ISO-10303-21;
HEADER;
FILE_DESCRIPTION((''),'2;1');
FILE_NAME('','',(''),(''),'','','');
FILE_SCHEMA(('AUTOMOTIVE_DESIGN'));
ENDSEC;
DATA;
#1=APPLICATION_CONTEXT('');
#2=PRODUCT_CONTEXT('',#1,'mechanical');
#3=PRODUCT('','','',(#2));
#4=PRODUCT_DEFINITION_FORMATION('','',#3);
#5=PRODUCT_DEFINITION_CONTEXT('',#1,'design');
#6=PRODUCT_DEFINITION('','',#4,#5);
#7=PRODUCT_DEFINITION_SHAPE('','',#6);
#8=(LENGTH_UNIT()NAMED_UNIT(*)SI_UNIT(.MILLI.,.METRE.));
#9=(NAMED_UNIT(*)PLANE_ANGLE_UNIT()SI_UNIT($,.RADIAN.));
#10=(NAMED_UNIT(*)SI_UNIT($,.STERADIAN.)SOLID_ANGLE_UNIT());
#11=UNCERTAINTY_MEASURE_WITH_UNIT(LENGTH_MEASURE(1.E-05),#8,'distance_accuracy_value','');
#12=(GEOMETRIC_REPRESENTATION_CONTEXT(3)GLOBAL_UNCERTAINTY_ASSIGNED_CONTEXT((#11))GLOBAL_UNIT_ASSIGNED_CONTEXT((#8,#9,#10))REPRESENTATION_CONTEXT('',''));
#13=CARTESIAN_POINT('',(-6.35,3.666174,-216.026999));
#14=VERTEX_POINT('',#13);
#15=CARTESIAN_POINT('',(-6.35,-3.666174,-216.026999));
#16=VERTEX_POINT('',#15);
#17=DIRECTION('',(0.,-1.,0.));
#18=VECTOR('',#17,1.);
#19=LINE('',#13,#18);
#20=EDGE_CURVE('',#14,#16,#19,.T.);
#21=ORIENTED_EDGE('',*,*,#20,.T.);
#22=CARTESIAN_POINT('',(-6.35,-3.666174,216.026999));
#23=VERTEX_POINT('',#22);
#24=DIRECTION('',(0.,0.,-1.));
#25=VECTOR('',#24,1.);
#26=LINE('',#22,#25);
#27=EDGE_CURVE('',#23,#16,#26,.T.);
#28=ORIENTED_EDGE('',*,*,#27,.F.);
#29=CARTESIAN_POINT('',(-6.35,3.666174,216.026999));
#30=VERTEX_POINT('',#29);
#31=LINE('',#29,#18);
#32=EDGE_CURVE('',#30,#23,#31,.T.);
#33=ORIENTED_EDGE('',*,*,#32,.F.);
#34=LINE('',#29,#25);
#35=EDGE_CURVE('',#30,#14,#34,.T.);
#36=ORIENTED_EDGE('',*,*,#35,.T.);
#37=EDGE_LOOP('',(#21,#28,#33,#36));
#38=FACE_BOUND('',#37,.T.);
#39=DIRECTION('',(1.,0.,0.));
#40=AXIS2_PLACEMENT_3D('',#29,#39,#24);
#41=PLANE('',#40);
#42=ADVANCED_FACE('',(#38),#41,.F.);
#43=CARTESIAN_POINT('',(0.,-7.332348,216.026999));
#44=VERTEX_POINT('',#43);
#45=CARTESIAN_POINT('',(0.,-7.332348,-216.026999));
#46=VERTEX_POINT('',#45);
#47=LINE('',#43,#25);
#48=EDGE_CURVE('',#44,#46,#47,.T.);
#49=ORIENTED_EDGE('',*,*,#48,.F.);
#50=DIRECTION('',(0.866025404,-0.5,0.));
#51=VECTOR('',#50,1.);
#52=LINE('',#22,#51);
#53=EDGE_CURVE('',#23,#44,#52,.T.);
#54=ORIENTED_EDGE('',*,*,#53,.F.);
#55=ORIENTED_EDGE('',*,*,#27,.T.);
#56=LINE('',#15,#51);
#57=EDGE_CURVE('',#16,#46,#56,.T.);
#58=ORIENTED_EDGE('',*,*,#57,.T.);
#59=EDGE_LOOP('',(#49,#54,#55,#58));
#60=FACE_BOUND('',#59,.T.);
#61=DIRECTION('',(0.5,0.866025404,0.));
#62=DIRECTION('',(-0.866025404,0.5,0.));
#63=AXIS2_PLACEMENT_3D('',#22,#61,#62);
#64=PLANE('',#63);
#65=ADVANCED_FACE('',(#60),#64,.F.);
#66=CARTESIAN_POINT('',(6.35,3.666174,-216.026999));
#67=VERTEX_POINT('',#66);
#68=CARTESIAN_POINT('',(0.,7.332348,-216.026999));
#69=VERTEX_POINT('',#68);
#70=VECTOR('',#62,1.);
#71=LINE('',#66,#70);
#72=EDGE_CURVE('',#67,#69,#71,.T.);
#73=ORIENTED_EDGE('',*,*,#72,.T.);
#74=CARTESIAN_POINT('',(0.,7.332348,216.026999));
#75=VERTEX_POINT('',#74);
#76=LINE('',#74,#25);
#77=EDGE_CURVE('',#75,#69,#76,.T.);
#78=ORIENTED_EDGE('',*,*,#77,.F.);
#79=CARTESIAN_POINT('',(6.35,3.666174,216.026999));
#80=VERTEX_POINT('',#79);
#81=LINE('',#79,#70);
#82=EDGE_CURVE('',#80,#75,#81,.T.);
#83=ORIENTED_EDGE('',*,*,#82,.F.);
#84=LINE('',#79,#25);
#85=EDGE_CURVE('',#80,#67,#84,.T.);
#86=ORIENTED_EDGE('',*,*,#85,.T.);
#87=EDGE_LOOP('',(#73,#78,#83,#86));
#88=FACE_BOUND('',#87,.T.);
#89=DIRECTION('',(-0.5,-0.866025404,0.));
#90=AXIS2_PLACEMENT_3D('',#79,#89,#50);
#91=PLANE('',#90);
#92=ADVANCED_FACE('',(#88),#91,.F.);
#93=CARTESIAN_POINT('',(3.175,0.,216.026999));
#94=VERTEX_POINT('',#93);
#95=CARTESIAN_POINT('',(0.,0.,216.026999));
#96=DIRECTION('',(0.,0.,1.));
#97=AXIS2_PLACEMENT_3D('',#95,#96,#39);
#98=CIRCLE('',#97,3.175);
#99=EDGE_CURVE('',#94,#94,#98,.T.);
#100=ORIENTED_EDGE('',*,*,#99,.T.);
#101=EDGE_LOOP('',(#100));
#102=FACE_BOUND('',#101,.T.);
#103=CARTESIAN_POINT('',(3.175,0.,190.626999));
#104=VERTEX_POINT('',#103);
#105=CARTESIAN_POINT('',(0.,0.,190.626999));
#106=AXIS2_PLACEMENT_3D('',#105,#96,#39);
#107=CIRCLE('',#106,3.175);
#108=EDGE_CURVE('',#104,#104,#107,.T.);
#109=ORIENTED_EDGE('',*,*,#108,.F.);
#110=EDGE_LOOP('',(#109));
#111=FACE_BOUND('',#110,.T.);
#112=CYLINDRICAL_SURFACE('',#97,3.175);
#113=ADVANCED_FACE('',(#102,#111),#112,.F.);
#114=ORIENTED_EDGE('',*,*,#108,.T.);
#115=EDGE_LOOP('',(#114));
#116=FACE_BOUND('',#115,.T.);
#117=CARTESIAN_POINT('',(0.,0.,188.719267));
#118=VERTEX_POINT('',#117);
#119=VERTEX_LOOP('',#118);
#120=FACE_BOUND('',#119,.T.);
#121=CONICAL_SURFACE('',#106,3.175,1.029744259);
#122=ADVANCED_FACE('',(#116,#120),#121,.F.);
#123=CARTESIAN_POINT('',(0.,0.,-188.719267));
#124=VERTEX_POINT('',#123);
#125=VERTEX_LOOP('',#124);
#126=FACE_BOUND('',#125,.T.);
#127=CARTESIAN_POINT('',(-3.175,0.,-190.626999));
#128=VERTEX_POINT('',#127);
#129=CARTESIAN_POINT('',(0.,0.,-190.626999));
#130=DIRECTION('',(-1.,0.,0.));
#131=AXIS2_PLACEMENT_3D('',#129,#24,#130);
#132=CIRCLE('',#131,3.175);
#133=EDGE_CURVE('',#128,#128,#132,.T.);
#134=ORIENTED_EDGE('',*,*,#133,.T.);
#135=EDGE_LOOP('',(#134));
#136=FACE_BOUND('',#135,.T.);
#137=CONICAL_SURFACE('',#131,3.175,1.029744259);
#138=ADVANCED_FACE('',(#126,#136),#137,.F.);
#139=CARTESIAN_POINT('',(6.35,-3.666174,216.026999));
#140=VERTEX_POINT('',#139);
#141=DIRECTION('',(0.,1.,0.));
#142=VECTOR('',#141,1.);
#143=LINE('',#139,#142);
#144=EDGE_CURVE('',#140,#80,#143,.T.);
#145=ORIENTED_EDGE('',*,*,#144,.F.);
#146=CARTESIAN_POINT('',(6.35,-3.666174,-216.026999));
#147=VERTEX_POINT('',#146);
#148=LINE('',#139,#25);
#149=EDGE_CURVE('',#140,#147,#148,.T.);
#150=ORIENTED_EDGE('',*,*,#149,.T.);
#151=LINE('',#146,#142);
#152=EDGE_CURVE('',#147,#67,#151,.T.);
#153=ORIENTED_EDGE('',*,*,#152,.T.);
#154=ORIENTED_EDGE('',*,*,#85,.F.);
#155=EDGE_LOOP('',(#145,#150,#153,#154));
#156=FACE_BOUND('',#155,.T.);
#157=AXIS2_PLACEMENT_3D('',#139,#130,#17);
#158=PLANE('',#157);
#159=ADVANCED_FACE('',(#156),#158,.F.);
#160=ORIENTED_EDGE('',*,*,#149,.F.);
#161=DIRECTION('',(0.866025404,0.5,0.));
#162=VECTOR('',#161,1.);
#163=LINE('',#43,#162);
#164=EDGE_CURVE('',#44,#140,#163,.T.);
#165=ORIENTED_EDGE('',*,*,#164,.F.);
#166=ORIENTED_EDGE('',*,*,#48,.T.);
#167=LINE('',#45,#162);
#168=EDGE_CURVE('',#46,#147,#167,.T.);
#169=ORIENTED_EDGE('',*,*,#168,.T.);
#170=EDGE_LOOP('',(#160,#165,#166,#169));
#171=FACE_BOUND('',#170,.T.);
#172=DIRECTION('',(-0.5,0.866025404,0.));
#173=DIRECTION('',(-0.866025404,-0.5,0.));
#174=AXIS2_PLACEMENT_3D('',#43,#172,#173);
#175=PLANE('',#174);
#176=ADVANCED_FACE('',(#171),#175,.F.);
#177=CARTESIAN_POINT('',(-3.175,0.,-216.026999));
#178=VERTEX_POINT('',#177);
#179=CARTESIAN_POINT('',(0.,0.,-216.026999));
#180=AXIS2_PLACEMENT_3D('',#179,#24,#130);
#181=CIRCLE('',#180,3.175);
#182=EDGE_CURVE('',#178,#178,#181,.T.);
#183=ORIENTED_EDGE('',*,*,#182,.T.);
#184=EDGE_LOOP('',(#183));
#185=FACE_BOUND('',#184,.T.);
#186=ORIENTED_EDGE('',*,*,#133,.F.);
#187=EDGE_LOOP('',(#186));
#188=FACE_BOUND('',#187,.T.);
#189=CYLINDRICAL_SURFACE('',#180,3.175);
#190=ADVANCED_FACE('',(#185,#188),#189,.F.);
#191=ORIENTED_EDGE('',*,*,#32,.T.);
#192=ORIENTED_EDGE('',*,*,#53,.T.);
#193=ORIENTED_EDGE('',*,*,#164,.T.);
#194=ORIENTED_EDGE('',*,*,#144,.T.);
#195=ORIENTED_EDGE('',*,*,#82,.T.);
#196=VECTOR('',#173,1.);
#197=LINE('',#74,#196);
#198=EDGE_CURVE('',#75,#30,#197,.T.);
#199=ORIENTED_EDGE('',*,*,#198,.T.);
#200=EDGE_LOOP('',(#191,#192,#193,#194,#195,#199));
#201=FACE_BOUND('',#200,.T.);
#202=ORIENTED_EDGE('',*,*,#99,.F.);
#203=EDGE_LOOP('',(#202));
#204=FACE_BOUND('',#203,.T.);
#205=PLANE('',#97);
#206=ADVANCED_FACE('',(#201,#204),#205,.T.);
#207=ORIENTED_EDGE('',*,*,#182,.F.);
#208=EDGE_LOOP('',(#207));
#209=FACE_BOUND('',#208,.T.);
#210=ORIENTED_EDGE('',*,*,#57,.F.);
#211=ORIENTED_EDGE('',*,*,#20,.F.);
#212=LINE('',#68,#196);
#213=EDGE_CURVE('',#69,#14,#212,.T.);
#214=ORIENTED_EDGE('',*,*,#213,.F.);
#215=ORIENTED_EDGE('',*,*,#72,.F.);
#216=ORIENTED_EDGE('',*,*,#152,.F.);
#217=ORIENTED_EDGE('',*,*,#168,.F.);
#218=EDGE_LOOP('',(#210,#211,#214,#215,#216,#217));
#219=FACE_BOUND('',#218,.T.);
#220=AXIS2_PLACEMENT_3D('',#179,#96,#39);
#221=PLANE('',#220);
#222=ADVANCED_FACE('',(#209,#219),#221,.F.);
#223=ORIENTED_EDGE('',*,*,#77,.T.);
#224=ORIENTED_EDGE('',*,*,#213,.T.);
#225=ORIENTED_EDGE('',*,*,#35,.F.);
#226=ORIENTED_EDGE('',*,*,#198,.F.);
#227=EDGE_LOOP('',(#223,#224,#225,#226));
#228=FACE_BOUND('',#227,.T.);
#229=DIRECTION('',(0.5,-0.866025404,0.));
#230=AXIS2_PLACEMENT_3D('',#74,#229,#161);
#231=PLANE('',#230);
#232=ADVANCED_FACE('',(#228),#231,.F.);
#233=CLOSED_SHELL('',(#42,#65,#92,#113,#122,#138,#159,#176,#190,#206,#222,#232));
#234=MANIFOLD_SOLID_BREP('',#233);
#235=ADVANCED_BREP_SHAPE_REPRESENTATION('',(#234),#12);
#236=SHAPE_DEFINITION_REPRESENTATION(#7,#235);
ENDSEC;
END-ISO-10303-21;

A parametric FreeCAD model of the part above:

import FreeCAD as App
import Part
import Sketcher

V = App.Vector
Q = App.Units.Quantity

doc = App.newDocument("Part")
params = doc.addObject("Spreadsheet::Sheet", "Params")
for row, (alias, value) in enumerate([
    ("pad1_length", "8.505 in"),
    ("pad1_length2", "8.505 in"),
    ("sketch2_diameter", "0.25 in"),
    ("hole_diameter", "0.25 in"),
    ("hole_depth", "1 in"),
    ("sketch3_diameter", "0.25 in"),
    ("hole2_diameter", "0.25 in"),
    ("hole2_depth", "1 in"),
], start=1):
    params.set(f"A{row}", alias)
    params.set(f"B{row}", "=" + value)
    params.setAlias(f"B{row}", alias)

body = doc.addObject("PartDesign::Body", "Body")

sketch1 = body.newObject("Sketcher::SketchObject", "Sketch")
sketch1.AttachmentSupport = (doc.getObject("XY_Plane"), [""])
sketch1.MapMode = "FlatFace"
sketch1.addGeometry([
    Part.LineSegment(V(-6, -4, 0), V(0, -7, 0)),
    Part.LineSegment(V(0, -7, 0), V(6, -4, 0)),
    Part.LineSegment(V(6, -4, 0), V(6, 4, 0)),
    Part.LineSegment(V(6, 4, 0), V(0, 7, 0)),
    Part.LineSegment(V(0, 7, 0), V(-6, 4, 0)),
    Part.LineSegment(V(-6, 4, 0), V(-6, -4, 0)),
], False)
sketch1.addConstraint([
    Sketcher.Constraint("Coincident", 0, 2, 1, 1),
    Sketcher.Constraint("Coincident", 1, 2, 2, 1),
    Sketcher.Constraint("Coincident", 2, 2, 3, 1),
    Sketcher.Constraint("Coincident", 3, 2, 4, 1),
    Sketcher.Constraint("Coincident", 4, 2, 5, 1),
    Sketcher.Constraint("Coincident", 5, 2, 0, 1),
    Sketcher.Constraint("Vertical", 2),
    Sketcher.Constraint("Vertical", 5),
    Sketcher.Constraint("Symmetric", 0, 2, 3, 2, -1, 1),
    Sketcher.Constraint("Symmetric", 1, 2, 4, 2, -1, 1),
    Sketcher.Constraint("PointOnObject", 0, 2, -2),
    Sketcher.Constraint("Parallel", 0, 3),
    Sketcher.Constraint("Horizontal", 2, 2, 4, 2),
    Sketcher.Constraint("Angle", 0, Q("-30 deg")),
    Sketcher.Constraint("DistanceX", 4, 2, 2, 2, Q("0.5 in")),
    Sketcher.Constraint("DistanceY", 2, 1, 2, 2, 7.332348),
])
pad1 = body.newObject("PartDesign::Pad", "Pad")
pad1.Profile = sketch1
pad1.Type = "TwoLengths"
pad1.setExpression("Length", "Params.pad1_length")
pad1.setExpression("Length2", "Params.pad1_length2")

sketch2 = body.newObject("Sketcher::SketchObject", "Sketch001")
sketch2.AttachmentSupport = (doc.getObject("XY_Plane"), [""])
sketch2.MapMode = "FlatFace"
sketch2.AttachmentOffset = App.Placement(V(0, 0, 8.505 * 25.4), App.Rotation())
sketch2.addGeometry(Part.Circle(V(0, 0, 0), V(0, 0, 1), 3.2), False)
sketch2.addConstraint([
    Sketcher.Constraint("Coincident", 0, 3, -1, 1),
    Sketcher.Constraint("Diameter", 0, Q("0.25 in")),
])
sketch2.setExpression("Constraints[1]", "Params.sketch2_diameter")
doc.recompute()
hole = body.newObject("PartDesign::Hole", "Hole")
hole.Profile = sketch2
hole.ThreadType = "None"
hole.setExpression("Diameter", "Params.hole_diameter")
hole.DepthType = "Dimension"
hole.setExpression("Depth", "Params.hole_depth")
hole.DrillPoint = "Angled"
hole.DrillPointAngle = 118

sketch3 = body.newObject("Sketcher::SketchObject", "Sketch002")
sketch3.AttachmentSupport = (doc.getObject("XY_Plane"), [""])
sketch3.MapMode = "FlatFace"
sketch3.AttachmentOffset = App.Placement(V(0, 0, -8.505 * 25.4), App.Rotation())
sketch3.addGeometry(Part.Circle(V(0, 0, 0), V(0, 0, 1), 3.2), False)
sketch3.addConstraint([
    Sketcher.Constraint("Coincident", 0, 3, -1, 1),
    Sketcher.Constraint("Diameter", 0, Q("0.25 in")),
])
sketch3.setExpression("Constraints[1]", "Params.sketch3_diameter")
doc.recompute()
hole2 = body.newObject("PartDesign::Hole", "Hole001")
hole2.Profile = sketch3
hole2.ThreadType = "None"
hole2.setExpression("Diameter", "Params.hole2_diameter")
hole2.DepthType = "Dimension"
hole2.setExpression("Depth", "Params.hole2_depth")
hole2.DrillPoint = "Angled"
hole2.DrillPointAngle = 118
hole2.Reversed = True

doc.recompute()
